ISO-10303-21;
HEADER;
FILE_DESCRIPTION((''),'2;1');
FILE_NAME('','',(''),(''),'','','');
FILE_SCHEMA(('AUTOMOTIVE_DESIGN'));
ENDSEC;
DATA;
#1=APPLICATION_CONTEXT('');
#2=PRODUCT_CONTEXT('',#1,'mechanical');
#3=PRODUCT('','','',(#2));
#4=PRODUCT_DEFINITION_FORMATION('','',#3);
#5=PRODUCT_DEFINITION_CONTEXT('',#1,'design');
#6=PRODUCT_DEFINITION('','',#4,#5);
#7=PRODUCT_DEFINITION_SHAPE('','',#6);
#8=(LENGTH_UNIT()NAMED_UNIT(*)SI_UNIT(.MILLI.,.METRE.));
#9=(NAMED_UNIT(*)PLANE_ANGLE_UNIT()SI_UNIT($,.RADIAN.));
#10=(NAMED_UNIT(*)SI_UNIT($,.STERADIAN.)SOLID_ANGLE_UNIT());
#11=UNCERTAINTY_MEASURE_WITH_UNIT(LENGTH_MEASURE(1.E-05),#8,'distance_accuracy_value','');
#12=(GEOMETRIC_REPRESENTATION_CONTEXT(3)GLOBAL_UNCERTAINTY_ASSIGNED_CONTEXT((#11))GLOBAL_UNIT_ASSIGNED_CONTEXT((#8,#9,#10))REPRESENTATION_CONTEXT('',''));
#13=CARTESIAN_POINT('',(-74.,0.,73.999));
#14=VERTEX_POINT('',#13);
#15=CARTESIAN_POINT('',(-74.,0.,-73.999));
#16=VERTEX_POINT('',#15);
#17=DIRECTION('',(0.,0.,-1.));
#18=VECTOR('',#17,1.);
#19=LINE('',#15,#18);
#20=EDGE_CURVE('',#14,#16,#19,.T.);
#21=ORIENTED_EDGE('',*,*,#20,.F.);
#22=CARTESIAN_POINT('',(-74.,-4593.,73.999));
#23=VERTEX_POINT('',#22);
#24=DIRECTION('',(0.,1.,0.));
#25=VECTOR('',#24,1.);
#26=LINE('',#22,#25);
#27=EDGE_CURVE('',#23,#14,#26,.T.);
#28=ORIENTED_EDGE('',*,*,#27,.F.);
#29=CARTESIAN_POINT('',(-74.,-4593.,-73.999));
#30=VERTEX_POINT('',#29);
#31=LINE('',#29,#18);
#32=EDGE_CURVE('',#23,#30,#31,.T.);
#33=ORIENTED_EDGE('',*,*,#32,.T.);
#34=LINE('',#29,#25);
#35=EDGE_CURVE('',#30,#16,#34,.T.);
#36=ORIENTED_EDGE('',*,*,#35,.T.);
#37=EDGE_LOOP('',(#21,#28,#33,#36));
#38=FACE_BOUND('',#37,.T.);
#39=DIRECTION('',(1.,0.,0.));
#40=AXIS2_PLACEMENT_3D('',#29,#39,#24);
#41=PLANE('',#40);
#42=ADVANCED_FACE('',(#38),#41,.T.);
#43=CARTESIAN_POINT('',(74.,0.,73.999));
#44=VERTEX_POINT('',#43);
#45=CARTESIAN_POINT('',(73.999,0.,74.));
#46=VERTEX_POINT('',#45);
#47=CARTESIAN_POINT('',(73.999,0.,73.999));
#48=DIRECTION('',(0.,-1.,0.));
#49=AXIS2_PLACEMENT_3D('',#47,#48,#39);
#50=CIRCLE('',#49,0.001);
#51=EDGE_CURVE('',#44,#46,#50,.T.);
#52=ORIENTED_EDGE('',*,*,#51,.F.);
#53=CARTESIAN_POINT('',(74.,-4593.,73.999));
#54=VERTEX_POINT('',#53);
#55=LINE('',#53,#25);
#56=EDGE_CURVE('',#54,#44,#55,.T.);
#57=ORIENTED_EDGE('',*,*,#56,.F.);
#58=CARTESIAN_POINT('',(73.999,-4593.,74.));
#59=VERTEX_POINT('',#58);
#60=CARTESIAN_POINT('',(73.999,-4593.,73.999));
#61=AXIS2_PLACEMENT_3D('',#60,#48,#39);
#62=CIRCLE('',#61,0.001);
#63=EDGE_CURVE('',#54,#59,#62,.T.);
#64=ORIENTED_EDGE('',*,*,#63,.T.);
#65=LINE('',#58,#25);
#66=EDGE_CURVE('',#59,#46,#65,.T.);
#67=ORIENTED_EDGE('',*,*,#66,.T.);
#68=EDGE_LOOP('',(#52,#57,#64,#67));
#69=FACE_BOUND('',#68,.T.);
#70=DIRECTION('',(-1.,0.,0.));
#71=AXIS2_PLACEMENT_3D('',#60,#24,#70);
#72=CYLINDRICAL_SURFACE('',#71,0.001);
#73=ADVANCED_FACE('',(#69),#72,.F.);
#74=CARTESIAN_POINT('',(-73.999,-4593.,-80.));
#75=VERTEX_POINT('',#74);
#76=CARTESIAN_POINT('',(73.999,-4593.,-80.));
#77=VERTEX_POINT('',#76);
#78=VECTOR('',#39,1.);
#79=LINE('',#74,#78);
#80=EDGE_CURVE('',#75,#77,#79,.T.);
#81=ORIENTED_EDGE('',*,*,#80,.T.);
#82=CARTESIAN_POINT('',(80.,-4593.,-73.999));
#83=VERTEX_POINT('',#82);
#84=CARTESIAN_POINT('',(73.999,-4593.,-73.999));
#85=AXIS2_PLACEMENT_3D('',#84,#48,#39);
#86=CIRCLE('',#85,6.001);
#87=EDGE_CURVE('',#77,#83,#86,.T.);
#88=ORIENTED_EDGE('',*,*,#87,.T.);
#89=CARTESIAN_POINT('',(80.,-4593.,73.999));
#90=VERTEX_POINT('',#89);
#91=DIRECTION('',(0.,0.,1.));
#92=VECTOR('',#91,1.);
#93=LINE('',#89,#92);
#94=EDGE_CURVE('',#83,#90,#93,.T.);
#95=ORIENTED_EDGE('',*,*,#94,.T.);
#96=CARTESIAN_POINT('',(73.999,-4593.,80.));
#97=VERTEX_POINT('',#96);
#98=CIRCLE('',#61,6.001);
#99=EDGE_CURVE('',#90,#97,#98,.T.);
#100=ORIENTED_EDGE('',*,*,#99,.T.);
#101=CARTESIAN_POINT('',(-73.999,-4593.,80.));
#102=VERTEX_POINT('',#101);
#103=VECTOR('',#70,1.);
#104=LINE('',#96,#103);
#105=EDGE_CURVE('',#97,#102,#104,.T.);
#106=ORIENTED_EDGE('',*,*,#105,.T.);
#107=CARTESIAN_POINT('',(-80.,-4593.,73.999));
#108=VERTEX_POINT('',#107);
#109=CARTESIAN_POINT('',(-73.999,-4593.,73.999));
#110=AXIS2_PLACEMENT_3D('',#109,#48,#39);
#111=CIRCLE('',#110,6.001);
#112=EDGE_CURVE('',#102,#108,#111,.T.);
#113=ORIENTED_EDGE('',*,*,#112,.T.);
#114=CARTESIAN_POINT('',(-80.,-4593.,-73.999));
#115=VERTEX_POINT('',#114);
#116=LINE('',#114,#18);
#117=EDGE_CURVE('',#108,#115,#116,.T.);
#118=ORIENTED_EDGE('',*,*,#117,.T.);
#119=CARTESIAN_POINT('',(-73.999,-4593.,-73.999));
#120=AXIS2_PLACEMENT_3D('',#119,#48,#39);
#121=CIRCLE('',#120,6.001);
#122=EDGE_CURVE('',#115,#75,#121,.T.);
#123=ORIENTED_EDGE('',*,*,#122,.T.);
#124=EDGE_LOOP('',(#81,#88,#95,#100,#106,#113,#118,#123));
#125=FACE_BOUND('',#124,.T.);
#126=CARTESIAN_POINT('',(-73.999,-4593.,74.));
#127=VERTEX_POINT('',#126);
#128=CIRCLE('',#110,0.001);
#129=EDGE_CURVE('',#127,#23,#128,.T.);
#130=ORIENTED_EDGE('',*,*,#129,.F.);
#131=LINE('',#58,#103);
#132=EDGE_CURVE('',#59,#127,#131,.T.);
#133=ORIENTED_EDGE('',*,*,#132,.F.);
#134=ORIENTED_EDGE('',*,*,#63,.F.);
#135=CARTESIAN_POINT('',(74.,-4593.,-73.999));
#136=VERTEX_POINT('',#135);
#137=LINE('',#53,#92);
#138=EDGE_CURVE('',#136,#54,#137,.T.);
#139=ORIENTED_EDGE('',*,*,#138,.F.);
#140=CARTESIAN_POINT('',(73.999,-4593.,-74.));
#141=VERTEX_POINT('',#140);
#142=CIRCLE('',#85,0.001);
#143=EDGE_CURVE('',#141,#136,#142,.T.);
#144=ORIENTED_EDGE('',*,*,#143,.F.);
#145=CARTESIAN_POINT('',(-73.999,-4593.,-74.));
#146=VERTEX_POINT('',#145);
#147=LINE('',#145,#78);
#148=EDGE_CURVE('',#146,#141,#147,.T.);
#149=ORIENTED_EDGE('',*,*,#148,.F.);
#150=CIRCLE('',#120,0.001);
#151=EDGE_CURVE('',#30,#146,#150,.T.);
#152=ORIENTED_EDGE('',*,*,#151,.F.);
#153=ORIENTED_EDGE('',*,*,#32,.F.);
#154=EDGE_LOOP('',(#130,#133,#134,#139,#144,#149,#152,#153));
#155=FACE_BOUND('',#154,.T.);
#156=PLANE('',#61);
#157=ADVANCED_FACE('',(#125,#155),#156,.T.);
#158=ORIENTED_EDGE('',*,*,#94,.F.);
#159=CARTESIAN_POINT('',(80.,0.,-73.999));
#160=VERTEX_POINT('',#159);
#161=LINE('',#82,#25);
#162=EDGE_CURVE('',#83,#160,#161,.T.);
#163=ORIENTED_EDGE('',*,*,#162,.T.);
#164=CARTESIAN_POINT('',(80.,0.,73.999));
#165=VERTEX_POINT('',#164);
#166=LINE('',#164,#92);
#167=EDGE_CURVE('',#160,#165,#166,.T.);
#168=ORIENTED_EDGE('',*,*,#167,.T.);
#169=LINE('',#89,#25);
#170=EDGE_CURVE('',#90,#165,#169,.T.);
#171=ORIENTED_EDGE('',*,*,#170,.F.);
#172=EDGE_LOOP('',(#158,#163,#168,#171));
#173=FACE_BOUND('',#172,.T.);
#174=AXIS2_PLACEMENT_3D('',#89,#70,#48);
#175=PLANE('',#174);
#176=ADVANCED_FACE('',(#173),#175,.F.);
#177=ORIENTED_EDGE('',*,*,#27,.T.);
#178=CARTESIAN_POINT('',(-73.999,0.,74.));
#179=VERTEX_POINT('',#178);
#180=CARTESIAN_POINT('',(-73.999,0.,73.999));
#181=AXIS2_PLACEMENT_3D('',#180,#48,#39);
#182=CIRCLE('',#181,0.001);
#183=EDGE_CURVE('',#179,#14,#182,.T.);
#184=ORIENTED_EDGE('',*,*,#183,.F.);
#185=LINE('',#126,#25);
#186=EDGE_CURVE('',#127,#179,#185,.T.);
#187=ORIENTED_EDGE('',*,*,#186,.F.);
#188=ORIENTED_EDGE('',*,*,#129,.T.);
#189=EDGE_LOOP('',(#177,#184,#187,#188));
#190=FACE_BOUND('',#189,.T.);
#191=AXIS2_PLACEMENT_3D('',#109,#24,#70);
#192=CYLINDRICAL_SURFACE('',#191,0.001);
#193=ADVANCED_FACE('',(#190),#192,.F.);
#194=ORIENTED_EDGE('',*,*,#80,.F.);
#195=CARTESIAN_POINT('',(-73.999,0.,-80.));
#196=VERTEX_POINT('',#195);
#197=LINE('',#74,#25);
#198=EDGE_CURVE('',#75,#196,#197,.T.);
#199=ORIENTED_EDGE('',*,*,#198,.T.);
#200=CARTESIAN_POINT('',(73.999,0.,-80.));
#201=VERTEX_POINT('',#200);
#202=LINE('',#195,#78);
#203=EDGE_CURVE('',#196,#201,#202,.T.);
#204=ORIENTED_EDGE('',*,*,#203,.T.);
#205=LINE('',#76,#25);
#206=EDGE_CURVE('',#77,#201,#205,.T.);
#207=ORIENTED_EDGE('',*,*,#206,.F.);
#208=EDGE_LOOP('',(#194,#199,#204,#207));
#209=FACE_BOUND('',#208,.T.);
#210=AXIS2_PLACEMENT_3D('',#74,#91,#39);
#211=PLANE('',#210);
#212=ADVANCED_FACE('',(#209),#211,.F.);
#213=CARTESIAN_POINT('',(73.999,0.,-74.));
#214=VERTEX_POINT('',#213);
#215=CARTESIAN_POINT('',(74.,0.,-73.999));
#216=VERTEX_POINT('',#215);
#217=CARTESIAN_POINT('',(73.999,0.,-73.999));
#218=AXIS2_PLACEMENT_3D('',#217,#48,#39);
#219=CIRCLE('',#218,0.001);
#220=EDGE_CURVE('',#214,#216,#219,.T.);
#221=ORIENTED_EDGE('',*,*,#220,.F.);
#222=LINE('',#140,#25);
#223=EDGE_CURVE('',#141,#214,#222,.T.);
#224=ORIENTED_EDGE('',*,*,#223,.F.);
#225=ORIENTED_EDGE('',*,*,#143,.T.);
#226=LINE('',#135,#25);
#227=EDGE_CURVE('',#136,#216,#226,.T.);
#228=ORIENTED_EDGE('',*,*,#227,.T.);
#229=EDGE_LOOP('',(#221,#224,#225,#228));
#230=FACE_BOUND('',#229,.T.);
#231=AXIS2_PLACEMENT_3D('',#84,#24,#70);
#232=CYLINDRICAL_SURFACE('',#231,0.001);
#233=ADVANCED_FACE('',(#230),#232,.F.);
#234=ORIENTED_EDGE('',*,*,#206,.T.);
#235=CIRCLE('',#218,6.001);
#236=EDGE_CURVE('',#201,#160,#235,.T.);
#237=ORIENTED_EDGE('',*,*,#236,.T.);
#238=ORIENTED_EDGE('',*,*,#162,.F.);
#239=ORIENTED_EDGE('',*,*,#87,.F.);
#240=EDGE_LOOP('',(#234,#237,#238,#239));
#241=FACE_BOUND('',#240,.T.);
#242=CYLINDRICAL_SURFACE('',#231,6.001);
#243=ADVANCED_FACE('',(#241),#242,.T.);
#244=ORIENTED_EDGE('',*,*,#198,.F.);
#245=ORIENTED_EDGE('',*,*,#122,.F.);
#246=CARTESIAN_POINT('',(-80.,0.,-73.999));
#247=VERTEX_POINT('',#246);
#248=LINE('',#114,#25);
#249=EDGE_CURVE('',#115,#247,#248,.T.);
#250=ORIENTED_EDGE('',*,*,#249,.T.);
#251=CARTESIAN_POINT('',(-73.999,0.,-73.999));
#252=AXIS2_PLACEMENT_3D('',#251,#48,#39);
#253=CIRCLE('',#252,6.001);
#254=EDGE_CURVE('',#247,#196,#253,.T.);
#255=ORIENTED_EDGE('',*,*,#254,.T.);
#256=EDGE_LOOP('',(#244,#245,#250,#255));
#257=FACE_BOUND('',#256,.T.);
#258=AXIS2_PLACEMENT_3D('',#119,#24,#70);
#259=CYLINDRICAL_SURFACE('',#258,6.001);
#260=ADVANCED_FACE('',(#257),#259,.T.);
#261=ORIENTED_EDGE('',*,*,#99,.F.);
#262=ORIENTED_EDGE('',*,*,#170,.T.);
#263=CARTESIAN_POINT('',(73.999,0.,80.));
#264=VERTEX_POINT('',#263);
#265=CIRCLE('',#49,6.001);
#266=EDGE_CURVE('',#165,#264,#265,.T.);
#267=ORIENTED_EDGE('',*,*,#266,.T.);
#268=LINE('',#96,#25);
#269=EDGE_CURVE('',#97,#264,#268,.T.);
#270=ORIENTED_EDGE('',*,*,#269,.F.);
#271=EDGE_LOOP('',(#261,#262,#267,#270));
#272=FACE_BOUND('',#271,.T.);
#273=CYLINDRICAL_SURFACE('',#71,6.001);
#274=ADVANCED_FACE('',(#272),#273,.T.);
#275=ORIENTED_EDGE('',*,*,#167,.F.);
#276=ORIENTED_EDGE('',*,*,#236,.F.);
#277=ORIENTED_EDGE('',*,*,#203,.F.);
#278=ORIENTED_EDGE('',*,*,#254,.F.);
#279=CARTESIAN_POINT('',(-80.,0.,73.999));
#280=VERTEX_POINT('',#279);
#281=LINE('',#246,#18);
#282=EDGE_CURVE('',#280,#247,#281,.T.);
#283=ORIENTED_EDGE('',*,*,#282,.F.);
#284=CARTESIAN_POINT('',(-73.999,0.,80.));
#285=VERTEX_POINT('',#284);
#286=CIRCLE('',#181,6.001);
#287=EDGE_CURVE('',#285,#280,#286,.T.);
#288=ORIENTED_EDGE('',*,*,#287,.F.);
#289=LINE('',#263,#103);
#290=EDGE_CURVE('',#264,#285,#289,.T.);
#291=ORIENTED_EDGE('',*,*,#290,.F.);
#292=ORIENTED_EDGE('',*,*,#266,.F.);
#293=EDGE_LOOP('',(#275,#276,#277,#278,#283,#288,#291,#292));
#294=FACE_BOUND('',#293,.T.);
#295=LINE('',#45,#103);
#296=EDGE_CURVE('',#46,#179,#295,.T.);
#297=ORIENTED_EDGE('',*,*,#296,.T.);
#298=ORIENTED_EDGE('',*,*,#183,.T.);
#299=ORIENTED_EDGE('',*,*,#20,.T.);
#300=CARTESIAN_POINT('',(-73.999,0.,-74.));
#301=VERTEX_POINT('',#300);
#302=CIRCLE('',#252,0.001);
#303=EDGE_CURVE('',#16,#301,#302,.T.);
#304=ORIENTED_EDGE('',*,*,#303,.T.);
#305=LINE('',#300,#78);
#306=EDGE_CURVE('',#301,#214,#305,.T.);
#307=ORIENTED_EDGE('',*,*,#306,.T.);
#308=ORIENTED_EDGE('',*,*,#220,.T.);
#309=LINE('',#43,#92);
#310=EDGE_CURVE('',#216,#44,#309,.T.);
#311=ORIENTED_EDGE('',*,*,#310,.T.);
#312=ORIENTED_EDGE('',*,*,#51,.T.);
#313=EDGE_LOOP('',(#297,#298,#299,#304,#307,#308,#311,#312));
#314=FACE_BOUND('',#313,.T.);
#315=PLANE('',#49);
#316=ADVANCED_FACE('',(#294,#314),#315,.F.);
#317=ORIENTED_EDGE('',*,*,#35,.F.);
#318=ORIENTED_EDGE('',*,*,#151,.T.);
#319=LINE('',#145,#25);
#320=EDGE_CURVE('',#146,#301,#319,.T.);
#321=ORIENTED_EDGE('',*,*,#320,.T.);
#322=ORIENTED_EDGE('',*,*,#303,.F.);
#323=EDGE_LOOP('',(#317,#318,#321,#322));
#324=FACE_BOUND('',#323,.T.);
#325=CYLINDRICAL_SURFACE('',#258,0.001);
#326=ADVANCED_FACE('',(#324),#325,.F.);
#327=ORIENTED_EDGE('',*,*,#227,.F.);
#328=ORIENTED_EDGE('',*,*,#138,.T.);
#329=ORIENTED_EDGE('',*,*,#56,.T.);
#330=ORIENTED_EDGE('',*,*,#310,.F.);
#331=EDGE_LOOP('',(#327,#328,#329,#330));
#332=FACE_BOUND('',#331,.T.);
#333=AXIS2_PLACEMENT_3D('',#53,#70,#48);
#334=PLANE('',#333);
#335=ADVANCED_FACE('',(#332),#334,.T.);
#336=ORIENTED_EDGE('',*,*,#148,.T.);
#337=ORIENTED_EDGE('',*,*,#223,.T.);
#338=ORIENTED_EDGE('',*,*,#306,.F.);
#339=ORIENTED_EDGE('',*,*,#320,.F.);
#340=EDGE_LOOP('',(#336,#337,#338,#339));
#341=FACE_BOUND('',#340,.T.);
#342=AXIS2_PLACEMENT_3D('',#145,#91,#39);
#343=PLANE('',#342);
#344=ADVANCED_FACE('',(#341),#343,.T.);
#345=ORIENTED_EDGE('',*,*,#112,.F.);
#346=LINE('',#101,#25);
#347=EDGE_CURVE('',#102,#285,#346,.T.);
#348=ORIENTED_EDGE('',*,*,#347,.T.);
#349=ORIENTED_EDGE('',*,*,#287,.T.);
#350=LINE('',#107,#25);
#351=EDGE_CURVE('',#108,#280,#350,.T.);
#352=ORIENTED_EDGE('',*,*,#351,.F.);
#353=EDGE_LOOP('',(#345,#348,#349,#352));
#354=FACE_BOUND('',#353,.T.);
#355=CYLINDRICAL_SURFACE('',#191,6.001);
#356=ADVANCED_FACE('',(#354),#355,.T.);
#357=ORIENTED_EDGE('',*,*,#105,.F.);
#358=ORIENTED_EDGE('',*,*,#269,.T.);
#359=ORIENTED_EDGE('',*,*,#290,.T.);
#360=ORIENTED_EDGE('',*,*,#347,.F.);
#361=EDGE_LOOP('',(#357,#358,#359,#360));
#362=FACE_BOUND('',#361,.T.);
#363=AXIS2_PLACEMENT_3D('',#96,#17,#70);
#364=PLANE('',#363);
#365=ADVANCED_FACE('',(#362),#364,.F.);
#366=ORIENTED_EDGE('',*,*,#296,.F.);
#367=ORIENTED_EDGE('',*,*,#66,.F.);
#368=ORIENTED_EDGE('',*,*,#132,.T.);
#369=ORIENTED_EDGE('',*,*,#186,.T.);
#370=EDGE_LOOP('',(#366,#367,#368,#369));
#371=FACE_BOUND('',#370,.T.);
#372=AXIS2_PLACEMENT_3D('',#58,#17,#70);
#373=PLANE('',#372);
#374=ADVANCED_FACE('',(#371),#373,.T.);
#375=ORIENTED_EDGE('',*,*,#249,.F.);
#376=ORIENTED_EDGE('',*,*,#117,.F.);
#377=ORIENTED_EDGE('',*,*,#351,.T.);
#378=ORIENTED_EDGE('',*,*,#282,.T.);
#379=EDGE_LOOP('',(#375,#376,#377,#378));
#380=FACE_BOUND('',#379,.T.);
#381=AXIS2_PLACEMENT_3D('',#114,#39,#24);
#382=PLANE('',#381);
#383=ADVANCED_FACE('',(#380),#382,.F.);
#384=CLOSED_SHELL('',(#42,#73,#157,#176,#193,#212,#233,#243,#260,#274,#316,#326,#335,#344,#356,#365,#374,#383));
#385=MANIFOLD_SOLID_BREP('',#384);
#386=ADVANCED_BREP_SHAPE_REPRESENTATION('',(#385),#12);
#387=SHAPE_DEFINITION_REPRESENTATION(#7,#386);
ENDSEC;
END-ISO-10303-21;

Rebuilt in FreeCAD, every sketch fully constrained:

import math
import FreeCAD as App
import Part
import Sketcher

V = App.Vector

doc = App.newDocument("Part")
body = doc.addObject("PartDesign::Body", "Body")

# Sketch on XZ plane
sketch1 = body.newObject("Sketcher::SketchObject", "Sketch")
sketch1.AttachmentSupport = (doc.getObject("XZ_Plane"), [""])
sketch1.MapMode = "FlatFace"
sketch1.addGeometry([
    Part.LineSegment(V(-73.999, -80, 0), V(73.999, -80, 0)),  # 0
    Part.ArcOfCircle(Part.Circle(V(73.999, -73.999, 0), V(0, 0, 1), 6.001), math.radians(-90), math.radians(0)),  # 1
    Part.LineSegment(V(80, -73.999, 0), V(80, 73.999, 0)),  # 2
    Part.ArcOfCircle(Part.Circle(V(73.999, 73.999, 0), V(0, 0, 1), 6.001), math.radians(0), math.radians(90)),  # 3
    Part.LineSegment(V(73.999, 80, 0), V(-73.999, 80, 0)),  # 4
    Part.ArcOfCircle(Part.Circle(V(-73.999, 73.999, 0), V(0, 0, 1), 6.001), math.radians(90), math.radians(180)),  # 5
    Part.LineSegment(V(-80, 73.999, 0), V(-80, -73.999, 0)),  # 6
    Part.ArcOfCircle(Part.Circle(V(-73.999, -73.999, 0), V(0, 0, 1), 6.001), math.radians(180), math.radians(270)),  # 7
    Part.LineSegment(V(73.999, -74, 0), V(-73.999, -74, 0)),  # 8
    Part.ArcOfCircle(Part.Circle(V(-73.999, -73.999, 0), V(0, 0, 1), 0.001), math.radians(180), math.radians(270)),  # 9
    Part.LineSegment(V(-74, -73.999, 0), V(-74, 73.999, 0)),  # 10
    Part.ArcOfCircle(Part.Circle(V(-73.999, 73.999, 0), V(0, 0, 1), 0.001), math.radians(90), math.radians(180)),  # 11
    Part.LineSegment(V(-73.999, 74, 0), V(73.999, 74, 0)),  # 12
    Part.ArcOfCircle(Part.Circle(V(73.999, 73.999, 0), V(0, 0, 1), 0.001), math.radians(0), math.radians(90)),  # 13
    Part.LineSegment(V(74, 73.999, 0), V(74, -73.999, 0)),  # 14
    Part.ArcOfCircle(Part.Circle(V(73.999, -73.999, 0), V(0, 0, 1), 0.001), math.radians(-90), math.radians(0)),  # 15
], False)
sketch1.addConstraint([
    Sketcher.Constraint("Tangent", 0, 2, 1, 1),
    Sketcher.Constraint("Tangent", 1, 2, 2, 1),
    Sketcher.Constraint("Tangent", 2, 2, 3, 1),
    Sketcher.Constraint("Tangent", 3, 2, 4, 1),
    Sketcher.Constraint("Tangent", 4, 2, 5, 1),
    Sketcher.Constraint("Tangent", 5, 2, 6, 1),
    Sketcher.Constraint("Tangent", 6, 2, 7, 1),
    Sketcher.Constraint("Tangent", 7, 2, 0, 1),
    Sketcher.Constraint("Tangent", 8, 2, 9, 2),
    Sketcher.Constraint("Tangent", 9, 1, 10, 1),
    Sketcher.Constraint("Tangent", 10, 2, 11, 2),
    Sketcher.Constraint("Tangent", 11, 1, 12, 1),
    Sketcher.Constraint("Tangent", 12, 2, 13, 2),
    Sketcher.Constraint("Tangent", 13, 1, 14, 1),
    Sketcher.Constraint("Tangent", 14, 2, 15, 2),
    Sketcher.Constraint("Tangent", 15, 1, 8, 1),
    Sketcher.Constraint("Horizontal", 0),
    Sketcher.Constraint("Vertical", 2),
    Sketcher.Constraint("Horizontal", 4),
    Sketcher.Constraint("Vertical", 6),
    Sketcher.Constraint("Horizontal", 8),
    Sketcher.Constraint("Vertical", 10),
    Sketcher.Constraint("Horizontal", 12),
    Sketcher.Constraint("Vertical", 14),
    Sketcher.Constraint("Coincident", 9, 3, 7, 3),
    Sketcher.Constraint("Coincident", 11, 3, 5, 3),
    Sketcher.Constraint("Coincident", 13, 3, 3, 3),
    Sketcher.Constraint("Equal", 1, 3),
    Sketcher.Constraint("Equal", 3, 5),
    Sketcher.Constraint("Equal", 5, 7),
    Sketcher.Constraint("Equal", 13, 15),
    Sketcher.Constraint("Symmetric", 1, 3, 5, 3, -1, 1),
    Sketcher.Constraint("Equal", 12, 2),
    Sketcher.Constraint("DistanceY", 0, 2, -1, 1, 80.0),
    Sketcher.Constraint("DistanceY", 8, 2, -1, 1, 74.0),
    Sketcher.Constraint("Radius", 1, 6.001),
])
pad1 = body.newObject("PartDesign::Pad", "Pad")
pad1.Profile = sketch1
pad1.Length = 4593

doc.recompute()
